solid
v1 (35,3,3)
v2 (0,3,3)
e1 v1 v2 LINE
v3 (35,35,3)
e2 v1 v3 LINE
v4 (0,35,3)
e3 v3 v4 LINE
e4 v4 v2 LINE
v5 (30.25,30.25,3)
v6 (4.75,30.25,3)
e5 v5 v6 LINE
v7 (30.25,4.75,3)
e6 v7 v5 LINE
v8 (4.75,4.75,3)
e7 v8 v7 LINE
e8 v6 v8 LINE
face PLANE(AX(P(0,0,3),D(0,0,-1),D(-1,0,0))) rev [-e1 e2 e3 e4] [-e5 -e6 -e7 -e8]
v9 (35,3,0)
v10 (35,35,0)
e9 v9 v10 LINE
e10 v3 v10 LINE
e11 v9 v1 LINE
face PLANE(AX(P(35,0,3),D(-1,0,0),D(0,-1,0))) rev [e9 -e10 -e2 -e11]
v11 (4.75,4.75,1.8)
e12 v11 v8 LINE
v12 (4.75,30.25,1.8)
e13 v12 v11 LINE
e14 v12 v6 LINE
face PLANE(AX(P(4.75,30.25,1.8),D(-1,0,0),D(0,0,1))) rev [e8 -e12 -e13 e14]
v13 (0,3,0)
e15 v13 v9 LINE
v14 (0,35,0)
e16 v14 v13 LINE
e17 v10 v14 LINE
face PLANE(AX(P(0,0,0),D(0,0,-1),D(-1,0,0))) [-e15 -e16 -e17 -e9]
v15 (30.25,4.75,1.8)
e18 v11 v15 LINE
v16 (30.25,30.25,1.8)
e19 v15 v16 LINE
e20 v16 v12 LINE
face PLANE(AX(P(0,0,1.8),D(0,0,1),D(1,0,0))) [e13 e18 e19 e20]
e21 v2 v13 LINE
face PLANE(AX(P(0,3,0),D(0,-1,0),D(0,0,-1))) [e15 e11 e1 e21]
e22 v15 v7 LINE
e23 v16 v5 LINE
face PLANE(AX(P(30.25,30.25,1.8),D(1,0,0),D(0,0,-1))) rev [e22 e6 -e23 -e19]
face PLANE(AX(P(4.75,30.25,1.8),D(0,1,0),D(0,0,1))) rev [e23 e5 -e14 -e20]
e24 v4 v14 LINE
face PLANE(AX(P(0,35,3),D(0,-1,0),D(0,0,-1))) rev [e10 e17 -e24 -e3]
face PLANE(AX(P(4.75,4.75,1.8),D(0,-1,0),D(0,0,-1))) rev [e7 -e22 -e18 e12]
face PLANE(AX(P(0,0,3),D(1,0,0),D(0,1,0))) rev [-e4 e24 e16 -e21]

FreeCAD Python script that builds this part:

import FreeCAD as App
import Part
import Sketcher
from FreeCAD import Vector
Q = App.Units.Quantity

doc = App.newDocument("Part")
body = doc.addObject("PartDesign::Body", "Body")

sketch1 = doc.addObject("Sketcher::SketchObject", "Sketch")
body.addObject(sketch1)
sketch1.AttachmentSupport = (doc.XY_Plane, [""])
sketch1.MapMode = "FlatFace"
sketch1.addGeometry([
    Part.LineSegment(Vector(0, 35, 0), Vector(0, 0, 0)),
    Part.LineSegment(Vector(0, 0, 0), Vector(35, 0, 0)),
    Part.LineSegment(Vector(35, 0, 0), Vector(35, 35, 0)),
    Part.LineSegment(Vector(35, 35, 0), Vector(0, 35, 0)),
], False)
sketch1.addConstraint([
    Sketcher.Constraint("Coincident", 0, 2, 1, 1),
    Sketcher.Constraint("Coincident", 1, 2, 2, 1),
    Sketcher.Constraint("Coincident", 2, 2, 3, 1),
    Sketcher.Constraint("Coincident", 3, 2, 0, 1),
    Sketcher.Constraint("Vertical", 0),
    Sketcher.Constraint("Horizontal", 1),
    Sketcher.Constraint("Vertical", 2),
    Sketcher.Constraint("Horizontal", 3),
    Sketcher.Constraint("Coincident", 0, 2, -1, 1),
    Sketcher.Constraint("Equal", 3, 0),
    Sketcher.Constraint("DistanceX", 1, 1, 1, 2, Q("35 mm")),
])
pad1 = doc.addObject("PartDesign::Pad", "Pad")
body.addObject(pad1)
pad1.Profile = sketch1
pad1.Length = 3

sketch2 = doc.addObject("Sketcher::SketchObject", "Sketch001")
body.addObject(sketch2)
sketch2.AttachmentSupport = (doc.XY_Plane, [""])
sketch2.MapMode = "FlatFace"
sketch2.AttachmentOffset = App.Placement(Vector(0, 0, 3), App.Rotation())
sketch2.addGeometry([
    Part.LineSegment(Vector(5, 30, 0), Vector(5, 5, 0)),
    Part.LineSegment(Vector(5, 5, 0), Vector(30, 5, 0)),
    Part.LineSegment(Vector(30, 5, 0), Vector(30, 30, 0)),
    Part.LineSegment(Vector(30, 30, 0), Vector(5, 30, 0)),
], False)
sketch2.addConstraint([
    Sketcher.Constraint("Coincident", 0, 2, 1, 1),
    Sketcher.Constraint("Coincident", 1, 2, 2, 1),
    Sketcher.Constraint("Coincident", 2, 2, 3, 1),
    Sketcher.Constraint("Coincident", 3, 2, 0, 1),
    Sketcher.Constraint("Vertical", 0),
    Sketcher.Constraint("Horizontal", 1),
    Sketcher.Constraint("Vertical", 2),
    Sketcher.Constraint("Horizontal", 3),
    Sketcher.Constraint("Equal", 3, 0),
    Sketcher.Constraint("DistanceX", 1, 1, 1, 2, Q("25.5 mm")),
    Sketcher.Constraint("DistanceX", -1, 1, 0, 2, Q("4.75 mm")),
    Sketcher.Constraint("DistanceY", -1, 1, 0, 2, Q("4.75 mm")),
])
pocket1 = doc.addObject("PartDesign::Pocket", "Pocket")
body.addObject(pocket1)
pocket1.Profile = sketch2
pocket1.Length = 1.2

sketch3 = doc.addObject("Sketcher::SketchObject", "Sketch002")
body.addObject(sketch3)
sketch3.AttachmentSupport = (doc.XZ_Plane, [""])
sketch3.MapMode = "FlatFace"
sketch3.addGeometry([
    Part.LineSegment(Vector(0, 3, 0), Vector(0, 0, 0)),
    Part.LineSegment(Vector(0, 0, 0), Vector(35, 0, 0)),
    Part.LineSegment(Vector(35, 0, 0), Vector(35, 3, 0)),
    Part.LineSegment(Vector(35, 3, 0), Vector(0, 3, 0)),
], False)
sketch3.addConstraint([
    Sketcher.Constraint("Coincident", 0, 2, 1, 1),
    Sketcher.Constraint("Coincident", 1, 2, 2, 1),
    Sketcher.Constraint("Coincident", 2, 2, 3, 1),
    Sketcher.Constraint("Coincident", 3, 2, 0, 1),
    Sketcher.Constraint("Vertical", 0),
    Sketcher.Constraint("Horizontal", 1),
    Sketcher.Constraint("Vertical", 2),
    Sketcher.Constraint("Horizontal", 3),
    Sketcher.Constraint("Coincident", 0, 2, -1, 1),
    Sketcher.Constraint("DistanceX", 1, 1, 1, 2, Q("35 mm")),
    Sketcher.Constraint("DistanceY", 0, 2, 0, 1, Q("3 mm")),
])
pocket2 = doc.addObject("PartDesign::Pocket", "Pocket001")
body.addObject(pocket2)
pocket2.Profile = sketch3
pocket2.Length = 3

doc.recompute()
